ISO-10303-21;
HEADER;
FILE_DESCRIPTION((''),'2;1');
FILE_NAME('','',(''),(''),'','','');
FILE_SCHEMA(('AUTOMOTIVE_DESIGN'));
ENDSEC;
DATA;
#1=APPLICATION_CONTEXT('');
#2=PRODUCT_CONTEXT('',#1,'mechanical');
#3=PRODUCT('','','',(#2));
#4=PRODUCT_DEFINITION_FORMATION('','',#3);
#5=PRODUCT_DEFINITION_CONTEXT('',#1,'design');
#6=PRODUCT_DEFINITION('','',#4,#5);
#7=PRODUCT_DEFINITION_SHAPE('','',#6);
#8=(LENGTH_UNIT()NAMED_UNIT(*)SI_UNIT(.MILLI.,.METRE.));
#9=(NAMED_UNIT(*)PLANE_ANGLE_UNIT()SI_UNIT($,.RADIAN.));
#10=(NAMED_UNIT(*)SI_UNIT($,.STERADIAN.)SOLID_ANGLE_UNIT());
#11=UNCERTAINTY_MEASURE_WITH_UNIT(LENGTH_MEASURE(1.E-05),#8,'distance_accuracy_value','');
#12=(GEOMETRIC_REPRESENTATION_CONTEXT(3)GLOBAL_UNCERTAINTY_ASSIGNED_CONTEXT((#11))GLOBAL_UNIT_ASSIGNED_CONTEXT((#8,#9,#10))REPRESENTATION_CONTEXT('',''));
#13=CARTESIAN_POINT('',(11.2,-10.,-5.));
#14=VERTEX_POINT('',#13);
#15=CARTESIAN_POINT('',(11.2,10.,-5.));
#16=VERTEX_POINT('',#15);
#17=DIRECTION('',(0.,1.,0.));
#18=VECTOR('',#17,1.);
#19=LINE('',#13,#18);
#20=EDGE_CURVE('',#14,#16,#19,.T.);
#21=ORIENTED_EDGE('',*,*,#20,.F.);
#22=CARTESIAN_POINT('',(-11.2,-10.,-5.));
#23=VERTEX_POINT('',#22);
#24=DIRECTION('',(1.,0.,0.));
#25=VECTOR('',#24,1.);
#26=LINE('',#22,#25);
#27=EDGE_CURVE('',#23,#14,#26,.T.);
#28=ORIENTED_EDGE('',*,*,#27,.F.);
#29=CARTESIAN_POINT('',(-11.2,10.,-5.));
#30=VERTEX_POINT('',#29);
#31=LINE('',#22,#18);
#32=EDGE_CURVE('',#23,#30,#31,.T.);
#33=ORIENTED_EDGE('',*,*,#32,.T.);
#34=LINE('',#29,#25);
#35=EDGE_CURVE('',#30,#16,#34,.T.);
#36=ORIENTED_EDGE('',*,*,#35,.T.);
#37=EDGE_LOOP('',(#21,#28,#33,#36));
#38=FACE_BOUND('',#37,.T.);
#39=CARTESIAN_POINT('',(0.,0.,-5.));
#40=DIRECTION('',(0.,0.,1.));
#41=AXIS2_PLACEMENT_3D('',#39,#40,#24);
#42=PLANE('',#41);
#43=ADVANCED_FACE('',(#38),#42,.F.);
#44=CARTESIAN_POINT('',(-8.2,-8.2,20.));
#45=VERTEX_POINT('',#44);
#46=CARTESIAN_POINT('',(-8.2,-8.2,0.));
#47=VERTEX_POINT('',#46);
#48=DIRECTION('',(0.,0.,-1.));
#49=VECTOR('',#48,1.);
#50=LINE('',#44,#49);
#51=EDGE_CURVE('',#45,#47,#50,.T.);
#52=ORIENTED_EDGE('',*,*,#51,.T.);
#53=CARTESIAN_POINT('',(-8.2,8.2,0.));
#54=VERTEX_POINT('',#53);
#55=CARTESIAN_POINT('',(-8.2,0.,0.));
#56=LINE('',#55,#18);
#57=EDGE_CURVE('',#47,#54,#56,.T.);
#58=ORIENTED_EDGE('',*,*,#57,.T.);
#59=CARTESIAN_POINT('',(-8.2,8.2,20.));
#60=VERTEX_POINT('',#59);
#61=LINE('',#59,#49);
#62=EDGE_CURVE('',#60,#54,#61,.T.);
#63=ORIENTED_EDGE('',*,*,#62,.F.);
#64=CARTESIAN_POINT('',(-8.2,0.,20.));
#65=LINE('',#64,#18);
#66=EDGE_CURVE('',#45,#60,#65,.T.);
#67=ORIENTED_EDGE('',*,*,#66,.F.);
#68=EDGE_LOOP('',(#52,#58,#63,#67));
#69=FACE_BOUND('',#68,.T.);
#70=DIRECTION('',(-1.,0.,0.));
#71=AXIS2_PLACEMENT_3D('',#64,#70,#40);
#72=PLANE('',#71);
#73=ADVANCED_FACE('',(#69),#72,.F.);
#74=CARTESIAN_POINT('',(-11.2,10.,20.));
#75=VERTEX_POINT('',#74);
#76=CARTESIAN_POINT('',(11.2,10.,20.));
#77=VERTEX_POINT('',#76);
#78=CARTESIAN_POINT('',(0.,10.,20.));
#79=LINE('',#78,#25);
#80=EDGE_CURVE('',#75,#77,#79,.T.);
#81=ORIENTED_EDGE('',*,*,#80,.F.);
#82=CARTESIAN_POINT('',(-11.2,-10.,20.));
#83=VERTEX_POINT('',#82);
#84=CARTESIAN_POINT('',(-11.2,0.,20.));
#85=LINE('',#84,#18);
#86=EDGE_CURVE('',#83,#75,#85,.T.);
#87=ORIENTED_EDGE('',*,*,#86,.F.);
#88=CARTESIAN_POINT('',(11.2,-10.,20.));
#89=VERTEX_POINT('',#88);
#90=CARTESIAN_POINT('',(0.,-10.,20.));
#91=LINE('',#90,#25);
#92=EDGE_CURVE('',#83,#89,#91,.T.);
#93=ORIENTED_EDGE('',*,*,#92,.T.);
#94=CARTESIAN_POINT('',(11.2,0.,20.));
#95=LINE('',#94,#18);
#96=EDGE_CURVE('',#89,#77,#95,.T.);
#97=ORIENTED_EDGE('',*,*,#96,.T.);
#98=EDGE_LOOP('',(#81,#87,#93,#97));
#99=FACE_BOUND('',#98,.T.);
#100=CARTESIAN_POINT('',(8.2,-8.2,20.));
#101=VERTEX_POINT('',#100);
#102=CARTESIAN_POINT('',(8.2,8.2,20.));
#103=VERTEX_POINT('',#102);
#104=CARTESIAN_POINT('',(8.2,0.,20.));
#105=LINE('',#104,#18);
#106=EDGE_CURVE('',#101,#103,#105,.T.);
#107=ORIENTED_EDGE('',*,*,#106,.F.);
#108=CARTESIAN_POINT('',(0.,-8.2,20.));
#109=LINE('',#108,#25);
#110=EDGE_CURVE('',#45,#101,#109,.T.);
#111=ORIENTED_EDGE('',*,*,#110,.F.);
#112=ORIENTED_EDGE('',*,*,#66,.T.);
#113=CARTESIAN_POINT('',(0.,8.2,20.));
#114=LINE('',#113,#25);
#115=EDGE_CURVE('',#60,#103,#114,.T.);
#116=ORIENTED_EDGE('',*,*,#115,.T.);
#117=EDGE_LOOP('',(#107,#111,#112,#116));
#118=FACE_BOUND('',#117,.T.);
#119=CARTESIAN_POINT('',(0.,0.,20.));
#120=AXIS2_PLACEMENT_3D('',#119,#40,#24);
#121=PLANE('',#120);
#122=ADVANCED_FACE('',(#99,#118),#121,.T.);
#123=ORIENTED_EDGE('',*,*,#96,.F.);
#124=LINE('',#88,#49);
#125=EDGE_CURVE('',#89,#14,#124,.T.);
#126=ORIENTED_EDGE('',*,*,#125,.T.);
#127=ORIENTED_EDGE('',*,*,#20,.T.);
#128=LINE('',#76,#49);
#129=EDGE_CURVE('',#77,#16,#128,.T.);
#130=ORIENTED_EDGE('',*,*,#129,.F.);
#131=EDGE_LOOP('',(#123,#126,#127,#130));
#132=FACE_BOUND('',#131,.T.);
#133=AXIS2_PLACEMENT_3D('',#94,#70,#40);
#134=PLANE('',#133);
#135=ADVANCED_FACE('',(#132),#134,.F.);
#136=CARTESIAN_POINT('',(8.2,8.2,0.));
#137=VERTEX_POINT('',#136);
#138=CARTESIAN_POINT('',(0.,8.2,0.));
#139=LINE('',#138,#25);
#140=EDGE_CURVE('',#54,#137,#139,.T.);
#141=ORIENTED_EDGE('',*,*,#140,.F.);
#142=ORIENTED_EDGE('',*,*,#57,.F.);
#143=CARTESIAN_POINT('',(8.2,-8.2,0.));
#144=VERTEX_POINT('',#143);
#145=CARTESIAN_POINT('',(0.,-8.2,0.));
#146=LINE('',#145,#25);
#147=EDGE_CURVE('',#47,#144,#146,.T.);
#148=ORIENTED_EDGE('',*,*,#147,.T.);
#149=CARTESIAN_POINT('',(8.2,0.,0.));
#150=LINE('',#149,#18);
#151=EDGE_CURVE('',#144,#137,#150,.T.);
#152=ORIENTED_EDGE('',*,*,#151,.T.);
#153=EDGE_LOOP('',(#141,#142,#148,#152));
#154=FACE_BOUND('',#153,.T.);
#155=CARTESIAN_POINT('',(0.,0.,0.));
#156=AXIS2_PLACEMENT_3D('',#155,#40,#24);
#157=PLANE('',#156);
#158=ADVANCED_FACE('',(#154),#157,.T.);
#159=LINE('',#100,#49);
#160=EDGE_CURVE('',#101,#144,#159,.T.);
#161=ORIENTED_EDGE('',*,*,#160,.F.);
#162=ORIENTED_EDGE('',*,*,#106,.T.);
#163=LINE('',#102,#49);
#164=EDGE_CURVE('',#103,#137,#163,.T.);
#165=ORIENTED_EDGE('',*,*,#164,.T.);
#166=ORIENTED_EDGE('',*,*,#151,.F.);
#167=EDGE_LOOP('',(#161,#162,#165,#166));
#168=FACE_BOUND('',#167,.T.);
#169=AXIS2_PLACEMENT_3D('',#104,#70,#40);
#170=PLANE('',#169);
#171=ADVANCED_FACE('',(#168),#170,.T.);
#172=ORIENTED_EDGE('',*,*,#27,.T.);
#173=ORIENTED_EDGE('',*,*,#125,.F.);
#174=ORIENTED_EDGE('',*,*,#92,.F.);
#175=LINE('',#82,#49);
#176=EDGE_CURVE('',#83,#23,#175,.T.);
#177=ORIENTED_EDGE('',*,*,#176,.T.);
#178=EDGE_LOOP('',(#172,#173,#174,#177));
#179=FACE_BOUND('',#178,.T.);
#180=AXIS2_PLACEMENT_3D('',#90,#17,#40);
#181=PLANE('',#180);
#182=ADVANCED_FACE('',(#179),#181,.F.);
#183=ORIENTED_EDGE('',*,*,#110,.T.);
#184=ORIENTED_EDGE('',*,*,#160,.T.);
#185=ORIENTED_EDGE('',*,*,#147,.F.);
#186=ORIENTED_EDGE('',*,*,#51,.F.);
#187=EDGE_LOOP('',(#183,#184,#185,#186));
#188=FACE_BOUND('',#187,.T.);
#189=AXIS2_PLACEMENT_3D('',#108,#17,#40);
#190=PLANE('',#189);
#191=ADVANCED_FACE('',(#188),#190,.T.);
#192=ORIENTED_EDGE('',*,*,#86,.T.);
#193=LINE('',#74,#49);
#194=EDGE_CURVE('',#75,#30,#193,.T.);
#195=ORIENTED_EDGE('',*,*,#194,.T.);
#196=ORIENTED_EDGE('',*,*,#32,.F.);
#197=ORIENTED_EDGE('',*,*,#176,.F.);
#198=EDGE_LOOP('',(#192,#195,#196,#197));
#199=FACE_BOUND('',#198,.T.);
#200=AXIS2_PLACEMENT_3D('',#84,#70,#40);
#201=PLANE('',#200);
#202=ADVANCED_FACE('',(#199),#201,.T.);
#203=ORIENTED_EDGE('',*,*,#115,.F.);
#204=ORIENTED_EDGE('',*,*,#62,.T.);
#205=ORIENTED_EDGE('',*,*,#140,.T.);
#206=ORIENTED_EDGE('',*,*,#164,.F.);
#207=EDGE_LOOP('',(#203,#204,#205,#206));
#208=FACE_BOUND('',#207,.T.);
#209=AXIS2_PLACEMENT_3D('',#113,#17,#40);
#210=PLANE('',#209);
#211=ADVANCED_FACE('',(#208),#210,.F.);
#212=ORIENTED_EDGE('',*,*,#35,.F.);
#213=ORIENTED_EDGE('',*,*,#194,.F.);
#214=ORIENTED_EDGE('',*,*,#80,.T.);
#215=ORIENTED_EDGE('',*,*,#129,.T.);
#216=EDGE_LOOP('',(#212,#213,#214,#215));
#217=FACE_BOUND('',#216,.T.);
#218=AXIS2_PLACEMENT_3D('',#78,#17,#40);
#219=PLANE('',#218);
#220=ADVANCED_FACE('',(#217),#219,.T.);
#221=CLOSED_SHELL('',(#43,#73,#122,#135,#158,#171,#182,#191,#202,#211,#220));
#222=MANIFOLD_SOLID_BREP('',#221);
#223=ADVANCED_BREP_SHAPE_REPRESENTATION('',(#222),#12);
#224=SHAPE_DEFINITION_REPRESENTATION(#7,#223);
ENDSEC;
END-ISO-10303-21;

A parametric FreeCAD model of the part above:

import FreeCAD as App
import Part
import Sketcher
Q = App.Units.Quantity


def add_polygon(sketch, points):
    """Adds a closed chain of lines whose ends are joined by coincident constraints."""
    first, n = sketch.GeometryCount, len(points)
    for a, b in zip(points, points[1:] + points[:1]):
        sketch.addGeometry(Part.LineSegment(App.Vector(*a, 0), App.Vector(*b, 0)), False)
    for i in range(n):
        sketch.addConstraint(Sketcher.Constraint("Coincident", first + i, 2, first + (i + 1) % n, 1))

doc = App.newDocument("Part")
params = doc.addObject("Spreadsheet::Sheet", "Params")
for row, (alias, value) in enumerate([
    ("sketch1_height", "20 mm"),
    ("sketch1_width", "22.4 mm"),
    ("sketch1_width2", "16.4 mm"),
    ("pad1_length", "20 mm"),
    ("sketch2_height", "20 mm"),
    ("sketch2_width", "22.4 mm"),
    ("pad2_length", "5 mm"),
], start=1):
    params.set(f"A{row}", alias)
    params.set(f"B{row}", "=" + value)
    params.setAlias(f"B{row}", alias)

body = doc.addObject("PartDesign::Body", "Body")

sketch1 = doc.addObject("Sketcher::SketchObject", "Sketch")
body.addObject(sketch1)
sketch1.AttachmentSupport = (doc.XY_Plane, [""])
sketch1.MapMode = "FlatFace"
add_polygon(sketch1, [(-11, 10), (-11, -10), (11, -10), (11, 10)])
add_polygon(sketch1, [(8, -8), (-8, -8), (-8, 8), (8, 8)])
sketch1.addConstraint([
    Sketcher.Constraint("Vertical", 0),
    Sketcher.Constraint("Horizontal", 1),
    Sketcher.Constraint("Vertical", 2),
    Sketcher.Constraint("Horizontal", 3),
    Sketcher.Constraint("Horizontal", 4),
    Sketcher.Constraint("Vertical", 5),
    Sketcher.Constraint("Horizontal", 6),
    Sketcher.Constraint("Vertical", 7),
    Sketcher.Constraint("Symmetric", 0, 2, 2, 2, -1, 1),
    Sketcher.Constraint("Symmetric", 4, 2, 6, 2, -1, 1),
    Sketcher.Constraint("Equal", 6, 5),
    Sketcher.Constraint("DistanceY", 0, 2, 0, 1, Q("20 mm")),
    Sketcher.Constraint("DistanceX", 1, 1, 1, 2, Q("22.4 mm")),
    Sketcher.Constraint("DistanceX", 4, 2, 4, 1, Q("16.4 mm")),
])
sketch1.setExpression("Constraints[19]", "Params.sketch1_height")
sketch1.setExpression("Constraints[20]", "Params.sketch1_width")
sketch1.setExpression("Constraints[21]", "Params.sketch1_width2")
pad1 = doc.addObject("PartDesign::Pad", "Pad")
body.addObject(pad1)
pad1.Profile = sketch1
pad1.setExpression("Length", "Params.pad1_length")

sketch2 = doc.addObject("Sketcher::SketchObject", "Sketch001")
body.addObject(sketch2)
sketch2.AttachmentSupport = (doc.XY_Plane, [""])
sketch2.MapMode = "FlatFace"
add_polygon(sketch2, [(-11, 10), (-11, -10), (11, -10), (11, 10)])
sketch2.addConstraint([
    Sketcher.Constraint("Vertical", 0),
    Sketcher.Constraint("Horizontal", 1),
    Sketcher.Constraint("Vertical", 2),
    Sketcher.Constraint("Horizontal", 3),
    Sketcher.Constraint("Symmetric", 0, 2, 2, 2, -1, 1),
    Sketcher.Constraint("DistanceY", 0, 2, 0, 1, Q("20 mm")),
    Sketcher.Constraint("DistanceX", 1, 1, 1, 2, Q("22.4 mm")),
])
sketch2.setExpression("Constraints[9]", "Params.sketch2_height")
sketch2.setExpression("Constraints[10]", "Params.sketch2_width")
pad2 = doc.addObject("PartDesign::Pad", "Pad001")
body.addObject(pad2)
pad2.Profile = sketch2
pad2.setExpression("Length", "Params.pad2_length")
pad2.Reversed = True

doc.recompute()
